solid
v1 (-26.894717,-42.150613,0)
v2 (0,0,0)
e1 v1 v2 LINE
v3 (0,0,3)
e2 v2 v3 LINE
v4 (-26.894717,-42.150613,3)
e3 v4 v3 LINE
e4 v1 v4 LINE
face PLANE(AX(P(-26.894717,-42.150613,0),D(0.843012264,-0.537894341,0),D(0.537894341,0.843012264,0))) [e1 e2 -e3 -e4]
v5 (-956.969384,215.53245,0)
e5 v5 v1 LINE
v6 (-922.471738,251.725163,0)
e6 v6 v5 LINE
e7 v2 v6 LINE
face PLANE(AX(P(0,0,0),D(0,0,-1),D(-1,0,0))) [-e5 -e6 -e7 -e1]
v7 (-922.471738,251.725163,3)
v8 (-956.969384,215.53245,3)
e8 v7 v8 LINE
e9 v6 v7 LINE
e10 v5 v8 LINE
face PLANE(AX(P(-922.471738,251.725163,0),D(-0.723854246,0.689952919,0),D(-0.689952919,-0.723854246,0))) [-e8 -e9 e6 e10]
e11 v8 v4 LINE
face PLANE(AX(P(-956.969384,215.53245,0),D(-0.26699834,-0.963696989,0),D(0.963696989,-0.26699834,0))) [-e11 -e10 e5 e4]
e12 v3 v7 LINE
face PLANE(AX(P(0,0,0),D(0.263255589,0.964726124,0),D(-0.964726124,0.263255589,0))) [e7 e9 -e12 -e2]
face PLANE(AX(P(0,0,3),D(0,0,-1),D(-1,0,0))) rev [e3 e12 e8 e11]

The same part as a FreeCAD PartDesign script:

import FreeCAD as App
import Part
import Sketcher
from FreeCAD import Vector
Q = App.Units.Quantity

doc = App.newDocument("Part")
body = doc.addObject("PartDesign::Body", "Body")

# Sketch on XY plane
sketch1 = body.newObject("Sketcher::SketchObject", "Sketch")
sketch1.AttachmentSupport = (doc.getObject("XY_Plane"), [""])
sketch1.MapMode = "FlatFace"
sketch1.addGeometry(Part.LineSegment(Vector(0, 0, 0), Vector(-922, 252, 0)), False)
sketch1.addGeometry(Part.LineSegment(Vector(-922, 252, 0), Vector(-957, 216, 0)), False)
sketch1.addGeometry(Part.LineSegment(Vector(-957, 216, 0), Vector(-27, -42, 0)), False)
sketch1.addGeometry(Part.LineSegment(Vector(-27, -42, 0), Vector(0, 0, 0)), False)
sketch1.addConstraint(Sketcher.Constraint("Coincident", 0, 2, 1, 1))
sketch1.addConstraint(Sketcher.Constraint("Coincident", 1, 2, 2, 1))
sketch1.addConstraint(Sketcher.Constraint("Coincident", 2, 2, 3, 1))
sketch1.addConstraint(Sketcher.Constraint("Coincident", 3, 2, 0, 1))
sketch1.addConstraint(Sketcher.Constraint("Coincident", 3, 2, -1, 1))
sketch1.addConstraint(Sketcher.Constraint("Equal", 1, 3))
sketch1.addConstraint(Sketcher.Constraint("Distance", 1, Q("50 mm")))
sketch1.addConstraint(Sketcher.Constraint("Distance", 0, Q("956.200641 mm")))
sketch1.addConstraint(Sketcher.Constraint("DistanceX", 0, 2, -1, 1, Q("922.471738 mm")))
sketch1.addConstraint(Sketcher.Constraint("DistanceY", -1, 1, 1, 2, Q("215.53245 mm")))
sketch1.addConstraint(Sketcher.Constraint("DistanceX", 0, 2, 2, 2, Q("895.577021 mm")))
pad1 = body.newObject("PartDesign::Pad", "Pad")
pad1.Profile = sketch1
pad1.Length = 3

doc.recompute()
